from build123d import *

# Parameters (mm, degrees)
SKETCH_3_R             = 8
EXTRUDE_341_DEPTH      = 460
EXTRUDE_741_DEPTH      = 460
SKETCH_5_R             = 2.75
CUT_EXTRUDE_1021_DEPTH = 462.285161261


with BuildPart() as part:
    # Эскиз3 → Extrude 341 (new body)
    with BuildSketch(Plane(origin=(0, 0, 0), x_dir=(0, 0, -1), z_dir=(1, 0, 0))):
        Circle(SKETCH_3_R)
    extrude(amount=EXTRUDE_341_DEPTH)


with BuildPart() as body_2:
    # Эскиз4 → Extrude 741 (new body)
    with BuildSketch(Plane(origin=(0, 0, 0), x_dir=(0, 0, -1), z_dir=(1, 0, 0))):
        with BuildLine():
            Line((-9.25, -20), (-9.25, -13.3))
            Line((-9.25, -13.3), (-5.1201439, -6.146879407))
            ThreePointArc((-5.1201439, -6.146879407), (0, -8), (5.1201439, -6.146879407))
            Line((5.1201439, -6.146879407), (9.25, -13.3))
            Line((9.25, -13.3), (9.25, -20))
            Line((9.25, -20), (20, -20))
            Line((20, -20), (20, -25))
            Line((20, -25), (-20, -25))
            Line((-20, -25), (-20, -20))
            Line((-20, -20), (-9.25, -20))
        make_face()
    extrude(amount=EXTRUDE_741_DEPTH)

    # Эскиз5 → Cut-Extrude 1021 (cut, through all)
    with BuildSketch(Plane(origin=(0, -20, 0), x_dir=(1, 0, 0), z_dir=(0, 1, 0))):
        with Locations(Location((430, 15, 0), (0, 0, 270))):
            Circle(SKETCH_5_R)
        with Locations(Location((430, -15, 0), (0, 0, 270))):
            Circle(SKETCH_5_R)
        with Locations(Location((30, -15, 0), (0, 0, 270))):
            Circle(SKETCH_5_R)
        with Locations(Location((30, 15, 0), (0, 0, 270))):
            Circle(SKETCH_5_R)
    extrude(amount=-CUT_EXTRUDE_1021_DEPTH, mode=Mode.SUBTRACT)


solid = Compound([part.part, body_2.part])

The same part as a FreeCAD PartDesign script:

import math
import FreeCAD as App
import Part
import Sketcher
Q = App.Units.Quantity

doc = App.newDocument("Part")
body = doc.addObject("PartDesign::Body", "Body")

sketch1 = body.newObject("Sketcher::SketchObject", "Sketch")
sketch1.AttachmentSupport = (doc.getObject("YZ_Plane"), [""])
sketch1.MapMode = "FlatFace"
sketch1.addGeometry(Part.Circle(App.Vector(0, 0, 0), App.Vector(0, 0, 1), 8), False)
sketch1.addConstraint([
    Sketcher.Constraint("Coincident", 0, 3, -1, 1),
    Sketcher.Constraint("Diameter", 0, Q("16 mm")),
])
pad1 = body.newObject("PartDesign::Pad", "Pad")
pad1.Profile = sketch1
pad1.Length = 460
body2 = doc.addObject("PartDesign::Body", "Body001")

sketch2 = body2.newObject("Sketcher::SketchObject", "Sketch001")
sketch2.AttachmentSupport = (doc.getObject("YZ_Plane001"), [""])
sketch2.MapMode = "FlatFace"
sketch2.addGeometry([
    Part.LineSegment(App.Vector(-13.3, 9.25, 0), App.Vector(-20, 9.25, 0)),
    Part.LineSegment(App.Vector(-20, 9.25, 0), App.Vector(-20, 20, 0)),
    Part.LineSegment(App.Vector(-20, 20, 0), App.Vector(-25, 20, 0)),
    Part.LineSegment(App.Vector(-25, 20, 0), App.Vector(-25, -20, 0)),
    Part.LineSegment(App.Vector(-25, -20, 0), App.Vector(-20, -20, 0)),
    Part.LineSegment(App.Vector(-20, -20, 0), App.Vector(-20, -9.25, 0)),
    Part.LineSegment(App.Vector(-20, -9.25, 0), App.Vector(-13.3, -9.25, 0)),
    Part.LineSegment(App.Vector(-13.3, -9.25, 0), App.Vector(-6.146879, -5.120144, 0)),
    Part.ArcOfCircle(Part.Circle(App.Vector(0, 0, 0), App.Vector(0, 0, 1), 8), math.radians(140.206839), math.radians(219.793161)),
    Part.LineSegment(App.Vector(-6.146879, 5.120144, 0), App.Vector(-13.3, 9.25, 0)),
], False)
sketch2.addConstraint([
    Sketcher.Constraint("Coincident", 0, 2, 1, 1),
    Sketcher.Constraint("Coincident", 1, 2, 2, 1),
    Sketcher.Constraint("Coincident", 2, 2, 3, 1),
    Sketcher.Constraint("Coincident", 3, 2, 4, 1),
    Sketcher.Constraint("Coincident", 4, 2, 5, 1),
    Sketcher.Constraint("Coincident", 5, 2, 6, 1),
    Sketcher.Constraint("Coincident", 6, 2, 7, 1),
    Sketcher.Constraint("Coincident", 7, 2, 8, 2),
    Sketcher.Constraint("Coincident", 8, 1, 9, 1),
    Sketcher.Constraint("Coincident", 9, 2, 0, 1),
    Sketcher.Constraint("Horizontal", 0),
    Sketcher.Constraint("Vertical", 1),
    Sketcher.Constraint("Horizontal", 2),
    Sketcher.Constraint("Vertical", 3),
    Sketcher.Constraint("Horizontal", 4),
    Sketcher.Constraint("Vertical", 5),
    Sketcher.Constraint("Horizontal", 6),
    Sketcher.Constraint("Coincident", 8, 3, -1, 1),
    Sketcher.Constraint("Symmetric", 1, 2, 4, 2, -1),
    Sketcher.Constraint("Symmetric", 6, 2, 9, 2, -1),
    Sketcher.Constraint("Vertical", 7, 2, 8, 1),
    Sketcher.Constraint("Radius", 8, Q("8 mm")),
    Sketcher.Constraint("DistanceX", 2, 2, 2, 1, Q("5 mm")),
    Sketcher.Constraint("DistanceY", 3, 2, 3, 1, Q("40 mm")),
    Sketcher.Constraint("Angle", 7, Q("30 deg")),
    Sketcher.Constraint("DistanceX", 0, 2, 0, 1, Q("6.7 mm")),
    Sketcher.Constraint("DistanceX", 0, 2, -1, 1, Q("20 mm")),
    Sketcher.Constraint("DistanceY", 1, 1, 1, 2, Q("10.75 mm")),
])
pad2 = body2.newObject("PartDesign::Pad", "Pad001")
pad2.Profile = sketch2
pad2.Length = 460

sketch3 = body2.newObject("Sketcher::SketchObject", "Sketch002")
sketch3.AttachmentSupport = (doc.getObject("XZ_Plane001"), [""])
sketch3.MapMode = "FlatFace"
sketch3.AttachmentOffset = App.Placement(App.Vector(0, 0, 20), App.Rotation())
sketch3.addGeometry([
    Part.Circle(App.Vector(430, -15, 0), App.Vector(0, 0, 1), 2.75),
    Part.Circle(App.Vector(430, 15, 0), App.Vector(0, 0, 1), 2.75),
    Part.Circle(App.Vector(30, 15, 0), App.Vector(0, 0, 1), 2.75),
    Part.Circle(App.Vector(30, -15, 0), App.Vector(0, 0, 1), 2.75),
], False)
sketch3.addConstraint([
    Sketcher.Constraint("Equal", 0, 1),
    Sketcher.Constraint("Equal", 1, 2),
    Sketcher.Constraint("Equal", 2, 3),
    Sketcher.Constraint("Symmetric", 0, 3, 1, 3, -1),
    Sketcher.Constraint("Symmetric", 2, 3, 3, 3, -1),
    Sketcher.Constraint("Horizontal", 1, 3, 2, 3),
    Sketcher.Constraint("Diameter", 0, Q("5.5 mm")),
    Sketcher.Constraint("DistanceX", -1, 1, 0, 3, Q("430 mm")),
    Sketcher.Constraint("DistanceY", 0, 3, -1, 1, Q("15 mm")),
    Sketcher.Constraint("DistanceX", -1, 1, 2, 3, Q("30 mm")),
])
pocket1 = body2.newObject("PartDesign::Pocket", "Pocket")
pocket1.Profile = sketch3
pocket1.Type = "ThroughAll"
pocket1.Reversed = True

doc.recompute()
